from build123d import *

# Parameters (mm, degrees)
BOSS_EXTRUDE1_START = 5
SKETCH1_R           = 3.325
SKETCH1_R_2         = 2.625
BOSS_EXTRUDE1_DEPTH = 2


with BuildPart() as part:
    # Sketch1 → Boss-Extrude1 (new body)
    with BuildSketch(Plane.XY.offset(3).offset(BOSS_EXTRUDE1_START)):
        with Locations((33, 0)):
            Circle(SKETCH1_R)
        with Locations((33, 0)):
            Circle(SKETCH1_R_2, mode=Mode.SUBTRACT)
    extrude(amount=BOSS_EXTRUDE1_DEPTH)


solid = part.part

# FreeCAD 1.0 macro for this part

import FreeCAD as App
import Part
import Sketcher

doc = App.newDocument("Part")
params = doc.addObject("Spreadsheet::Sheet", "Params")
for row, (alias, value) in enumerate([
    ("sketch1_diameter", "6.65 mm"),
    ("sketch1_diameter2", "5.25 mm"),
    ("pad1_length", "2 mm"),
], start=1):
    params.set(f"A{row}", alias)
    params.set(f"B{row}", "=" + value)
    params.setAlias(f"B{row}", alias)

body = doc.addObject("PartDesign::Body", "Body")

# Sketch on XY plane
sketch1 = body.newObject("Sketcher::SketchObject", "Sketch")
sketch1.AttachmentSupport = (doc.getObject("XY_Plane"), [""])
sketch1.MapMode = "FlatFace"
sketch1.AttachmentOffset = App.Placement(App.Vector(0, 0, 8), App.Rotation())
sketch1.addGeometry([
    Part.Circle(App.Vector(33, 0, 0), App.Vector(0, 0, 1), 3.3),
    Part.Circle(App.Vector(33, 0, 0), App.Vector(0, 0, 1), 2.6),
], False)
sketch1.addConstraint([
    Sketcher.Constraint("Coincident", 1, 3, 0, 3),
    Sketcher.Constraint("PointOnObject", 0, 3, -1),
    Sketcher.Constraint("Diameter", 0, 6.65),
    Sketcher.Constraint("Diameter", 1, 5.25),
    Sketcher.Constraint("DistanceX", -1, 1, 0, 3, 33.0),
])
sketch1.setExpression("Constraints[2]", "Params.sketch1_diameter")
sketch1.setExpression("Constraints[3]", "Params.sketch1_diameter2")
pad1 = body.newObject("PartDesign::Pad", "Pad")
pad1.Profile = sketch1
pad1.setExpression("Length", "Params.pad1_length")

doc.recompute()
